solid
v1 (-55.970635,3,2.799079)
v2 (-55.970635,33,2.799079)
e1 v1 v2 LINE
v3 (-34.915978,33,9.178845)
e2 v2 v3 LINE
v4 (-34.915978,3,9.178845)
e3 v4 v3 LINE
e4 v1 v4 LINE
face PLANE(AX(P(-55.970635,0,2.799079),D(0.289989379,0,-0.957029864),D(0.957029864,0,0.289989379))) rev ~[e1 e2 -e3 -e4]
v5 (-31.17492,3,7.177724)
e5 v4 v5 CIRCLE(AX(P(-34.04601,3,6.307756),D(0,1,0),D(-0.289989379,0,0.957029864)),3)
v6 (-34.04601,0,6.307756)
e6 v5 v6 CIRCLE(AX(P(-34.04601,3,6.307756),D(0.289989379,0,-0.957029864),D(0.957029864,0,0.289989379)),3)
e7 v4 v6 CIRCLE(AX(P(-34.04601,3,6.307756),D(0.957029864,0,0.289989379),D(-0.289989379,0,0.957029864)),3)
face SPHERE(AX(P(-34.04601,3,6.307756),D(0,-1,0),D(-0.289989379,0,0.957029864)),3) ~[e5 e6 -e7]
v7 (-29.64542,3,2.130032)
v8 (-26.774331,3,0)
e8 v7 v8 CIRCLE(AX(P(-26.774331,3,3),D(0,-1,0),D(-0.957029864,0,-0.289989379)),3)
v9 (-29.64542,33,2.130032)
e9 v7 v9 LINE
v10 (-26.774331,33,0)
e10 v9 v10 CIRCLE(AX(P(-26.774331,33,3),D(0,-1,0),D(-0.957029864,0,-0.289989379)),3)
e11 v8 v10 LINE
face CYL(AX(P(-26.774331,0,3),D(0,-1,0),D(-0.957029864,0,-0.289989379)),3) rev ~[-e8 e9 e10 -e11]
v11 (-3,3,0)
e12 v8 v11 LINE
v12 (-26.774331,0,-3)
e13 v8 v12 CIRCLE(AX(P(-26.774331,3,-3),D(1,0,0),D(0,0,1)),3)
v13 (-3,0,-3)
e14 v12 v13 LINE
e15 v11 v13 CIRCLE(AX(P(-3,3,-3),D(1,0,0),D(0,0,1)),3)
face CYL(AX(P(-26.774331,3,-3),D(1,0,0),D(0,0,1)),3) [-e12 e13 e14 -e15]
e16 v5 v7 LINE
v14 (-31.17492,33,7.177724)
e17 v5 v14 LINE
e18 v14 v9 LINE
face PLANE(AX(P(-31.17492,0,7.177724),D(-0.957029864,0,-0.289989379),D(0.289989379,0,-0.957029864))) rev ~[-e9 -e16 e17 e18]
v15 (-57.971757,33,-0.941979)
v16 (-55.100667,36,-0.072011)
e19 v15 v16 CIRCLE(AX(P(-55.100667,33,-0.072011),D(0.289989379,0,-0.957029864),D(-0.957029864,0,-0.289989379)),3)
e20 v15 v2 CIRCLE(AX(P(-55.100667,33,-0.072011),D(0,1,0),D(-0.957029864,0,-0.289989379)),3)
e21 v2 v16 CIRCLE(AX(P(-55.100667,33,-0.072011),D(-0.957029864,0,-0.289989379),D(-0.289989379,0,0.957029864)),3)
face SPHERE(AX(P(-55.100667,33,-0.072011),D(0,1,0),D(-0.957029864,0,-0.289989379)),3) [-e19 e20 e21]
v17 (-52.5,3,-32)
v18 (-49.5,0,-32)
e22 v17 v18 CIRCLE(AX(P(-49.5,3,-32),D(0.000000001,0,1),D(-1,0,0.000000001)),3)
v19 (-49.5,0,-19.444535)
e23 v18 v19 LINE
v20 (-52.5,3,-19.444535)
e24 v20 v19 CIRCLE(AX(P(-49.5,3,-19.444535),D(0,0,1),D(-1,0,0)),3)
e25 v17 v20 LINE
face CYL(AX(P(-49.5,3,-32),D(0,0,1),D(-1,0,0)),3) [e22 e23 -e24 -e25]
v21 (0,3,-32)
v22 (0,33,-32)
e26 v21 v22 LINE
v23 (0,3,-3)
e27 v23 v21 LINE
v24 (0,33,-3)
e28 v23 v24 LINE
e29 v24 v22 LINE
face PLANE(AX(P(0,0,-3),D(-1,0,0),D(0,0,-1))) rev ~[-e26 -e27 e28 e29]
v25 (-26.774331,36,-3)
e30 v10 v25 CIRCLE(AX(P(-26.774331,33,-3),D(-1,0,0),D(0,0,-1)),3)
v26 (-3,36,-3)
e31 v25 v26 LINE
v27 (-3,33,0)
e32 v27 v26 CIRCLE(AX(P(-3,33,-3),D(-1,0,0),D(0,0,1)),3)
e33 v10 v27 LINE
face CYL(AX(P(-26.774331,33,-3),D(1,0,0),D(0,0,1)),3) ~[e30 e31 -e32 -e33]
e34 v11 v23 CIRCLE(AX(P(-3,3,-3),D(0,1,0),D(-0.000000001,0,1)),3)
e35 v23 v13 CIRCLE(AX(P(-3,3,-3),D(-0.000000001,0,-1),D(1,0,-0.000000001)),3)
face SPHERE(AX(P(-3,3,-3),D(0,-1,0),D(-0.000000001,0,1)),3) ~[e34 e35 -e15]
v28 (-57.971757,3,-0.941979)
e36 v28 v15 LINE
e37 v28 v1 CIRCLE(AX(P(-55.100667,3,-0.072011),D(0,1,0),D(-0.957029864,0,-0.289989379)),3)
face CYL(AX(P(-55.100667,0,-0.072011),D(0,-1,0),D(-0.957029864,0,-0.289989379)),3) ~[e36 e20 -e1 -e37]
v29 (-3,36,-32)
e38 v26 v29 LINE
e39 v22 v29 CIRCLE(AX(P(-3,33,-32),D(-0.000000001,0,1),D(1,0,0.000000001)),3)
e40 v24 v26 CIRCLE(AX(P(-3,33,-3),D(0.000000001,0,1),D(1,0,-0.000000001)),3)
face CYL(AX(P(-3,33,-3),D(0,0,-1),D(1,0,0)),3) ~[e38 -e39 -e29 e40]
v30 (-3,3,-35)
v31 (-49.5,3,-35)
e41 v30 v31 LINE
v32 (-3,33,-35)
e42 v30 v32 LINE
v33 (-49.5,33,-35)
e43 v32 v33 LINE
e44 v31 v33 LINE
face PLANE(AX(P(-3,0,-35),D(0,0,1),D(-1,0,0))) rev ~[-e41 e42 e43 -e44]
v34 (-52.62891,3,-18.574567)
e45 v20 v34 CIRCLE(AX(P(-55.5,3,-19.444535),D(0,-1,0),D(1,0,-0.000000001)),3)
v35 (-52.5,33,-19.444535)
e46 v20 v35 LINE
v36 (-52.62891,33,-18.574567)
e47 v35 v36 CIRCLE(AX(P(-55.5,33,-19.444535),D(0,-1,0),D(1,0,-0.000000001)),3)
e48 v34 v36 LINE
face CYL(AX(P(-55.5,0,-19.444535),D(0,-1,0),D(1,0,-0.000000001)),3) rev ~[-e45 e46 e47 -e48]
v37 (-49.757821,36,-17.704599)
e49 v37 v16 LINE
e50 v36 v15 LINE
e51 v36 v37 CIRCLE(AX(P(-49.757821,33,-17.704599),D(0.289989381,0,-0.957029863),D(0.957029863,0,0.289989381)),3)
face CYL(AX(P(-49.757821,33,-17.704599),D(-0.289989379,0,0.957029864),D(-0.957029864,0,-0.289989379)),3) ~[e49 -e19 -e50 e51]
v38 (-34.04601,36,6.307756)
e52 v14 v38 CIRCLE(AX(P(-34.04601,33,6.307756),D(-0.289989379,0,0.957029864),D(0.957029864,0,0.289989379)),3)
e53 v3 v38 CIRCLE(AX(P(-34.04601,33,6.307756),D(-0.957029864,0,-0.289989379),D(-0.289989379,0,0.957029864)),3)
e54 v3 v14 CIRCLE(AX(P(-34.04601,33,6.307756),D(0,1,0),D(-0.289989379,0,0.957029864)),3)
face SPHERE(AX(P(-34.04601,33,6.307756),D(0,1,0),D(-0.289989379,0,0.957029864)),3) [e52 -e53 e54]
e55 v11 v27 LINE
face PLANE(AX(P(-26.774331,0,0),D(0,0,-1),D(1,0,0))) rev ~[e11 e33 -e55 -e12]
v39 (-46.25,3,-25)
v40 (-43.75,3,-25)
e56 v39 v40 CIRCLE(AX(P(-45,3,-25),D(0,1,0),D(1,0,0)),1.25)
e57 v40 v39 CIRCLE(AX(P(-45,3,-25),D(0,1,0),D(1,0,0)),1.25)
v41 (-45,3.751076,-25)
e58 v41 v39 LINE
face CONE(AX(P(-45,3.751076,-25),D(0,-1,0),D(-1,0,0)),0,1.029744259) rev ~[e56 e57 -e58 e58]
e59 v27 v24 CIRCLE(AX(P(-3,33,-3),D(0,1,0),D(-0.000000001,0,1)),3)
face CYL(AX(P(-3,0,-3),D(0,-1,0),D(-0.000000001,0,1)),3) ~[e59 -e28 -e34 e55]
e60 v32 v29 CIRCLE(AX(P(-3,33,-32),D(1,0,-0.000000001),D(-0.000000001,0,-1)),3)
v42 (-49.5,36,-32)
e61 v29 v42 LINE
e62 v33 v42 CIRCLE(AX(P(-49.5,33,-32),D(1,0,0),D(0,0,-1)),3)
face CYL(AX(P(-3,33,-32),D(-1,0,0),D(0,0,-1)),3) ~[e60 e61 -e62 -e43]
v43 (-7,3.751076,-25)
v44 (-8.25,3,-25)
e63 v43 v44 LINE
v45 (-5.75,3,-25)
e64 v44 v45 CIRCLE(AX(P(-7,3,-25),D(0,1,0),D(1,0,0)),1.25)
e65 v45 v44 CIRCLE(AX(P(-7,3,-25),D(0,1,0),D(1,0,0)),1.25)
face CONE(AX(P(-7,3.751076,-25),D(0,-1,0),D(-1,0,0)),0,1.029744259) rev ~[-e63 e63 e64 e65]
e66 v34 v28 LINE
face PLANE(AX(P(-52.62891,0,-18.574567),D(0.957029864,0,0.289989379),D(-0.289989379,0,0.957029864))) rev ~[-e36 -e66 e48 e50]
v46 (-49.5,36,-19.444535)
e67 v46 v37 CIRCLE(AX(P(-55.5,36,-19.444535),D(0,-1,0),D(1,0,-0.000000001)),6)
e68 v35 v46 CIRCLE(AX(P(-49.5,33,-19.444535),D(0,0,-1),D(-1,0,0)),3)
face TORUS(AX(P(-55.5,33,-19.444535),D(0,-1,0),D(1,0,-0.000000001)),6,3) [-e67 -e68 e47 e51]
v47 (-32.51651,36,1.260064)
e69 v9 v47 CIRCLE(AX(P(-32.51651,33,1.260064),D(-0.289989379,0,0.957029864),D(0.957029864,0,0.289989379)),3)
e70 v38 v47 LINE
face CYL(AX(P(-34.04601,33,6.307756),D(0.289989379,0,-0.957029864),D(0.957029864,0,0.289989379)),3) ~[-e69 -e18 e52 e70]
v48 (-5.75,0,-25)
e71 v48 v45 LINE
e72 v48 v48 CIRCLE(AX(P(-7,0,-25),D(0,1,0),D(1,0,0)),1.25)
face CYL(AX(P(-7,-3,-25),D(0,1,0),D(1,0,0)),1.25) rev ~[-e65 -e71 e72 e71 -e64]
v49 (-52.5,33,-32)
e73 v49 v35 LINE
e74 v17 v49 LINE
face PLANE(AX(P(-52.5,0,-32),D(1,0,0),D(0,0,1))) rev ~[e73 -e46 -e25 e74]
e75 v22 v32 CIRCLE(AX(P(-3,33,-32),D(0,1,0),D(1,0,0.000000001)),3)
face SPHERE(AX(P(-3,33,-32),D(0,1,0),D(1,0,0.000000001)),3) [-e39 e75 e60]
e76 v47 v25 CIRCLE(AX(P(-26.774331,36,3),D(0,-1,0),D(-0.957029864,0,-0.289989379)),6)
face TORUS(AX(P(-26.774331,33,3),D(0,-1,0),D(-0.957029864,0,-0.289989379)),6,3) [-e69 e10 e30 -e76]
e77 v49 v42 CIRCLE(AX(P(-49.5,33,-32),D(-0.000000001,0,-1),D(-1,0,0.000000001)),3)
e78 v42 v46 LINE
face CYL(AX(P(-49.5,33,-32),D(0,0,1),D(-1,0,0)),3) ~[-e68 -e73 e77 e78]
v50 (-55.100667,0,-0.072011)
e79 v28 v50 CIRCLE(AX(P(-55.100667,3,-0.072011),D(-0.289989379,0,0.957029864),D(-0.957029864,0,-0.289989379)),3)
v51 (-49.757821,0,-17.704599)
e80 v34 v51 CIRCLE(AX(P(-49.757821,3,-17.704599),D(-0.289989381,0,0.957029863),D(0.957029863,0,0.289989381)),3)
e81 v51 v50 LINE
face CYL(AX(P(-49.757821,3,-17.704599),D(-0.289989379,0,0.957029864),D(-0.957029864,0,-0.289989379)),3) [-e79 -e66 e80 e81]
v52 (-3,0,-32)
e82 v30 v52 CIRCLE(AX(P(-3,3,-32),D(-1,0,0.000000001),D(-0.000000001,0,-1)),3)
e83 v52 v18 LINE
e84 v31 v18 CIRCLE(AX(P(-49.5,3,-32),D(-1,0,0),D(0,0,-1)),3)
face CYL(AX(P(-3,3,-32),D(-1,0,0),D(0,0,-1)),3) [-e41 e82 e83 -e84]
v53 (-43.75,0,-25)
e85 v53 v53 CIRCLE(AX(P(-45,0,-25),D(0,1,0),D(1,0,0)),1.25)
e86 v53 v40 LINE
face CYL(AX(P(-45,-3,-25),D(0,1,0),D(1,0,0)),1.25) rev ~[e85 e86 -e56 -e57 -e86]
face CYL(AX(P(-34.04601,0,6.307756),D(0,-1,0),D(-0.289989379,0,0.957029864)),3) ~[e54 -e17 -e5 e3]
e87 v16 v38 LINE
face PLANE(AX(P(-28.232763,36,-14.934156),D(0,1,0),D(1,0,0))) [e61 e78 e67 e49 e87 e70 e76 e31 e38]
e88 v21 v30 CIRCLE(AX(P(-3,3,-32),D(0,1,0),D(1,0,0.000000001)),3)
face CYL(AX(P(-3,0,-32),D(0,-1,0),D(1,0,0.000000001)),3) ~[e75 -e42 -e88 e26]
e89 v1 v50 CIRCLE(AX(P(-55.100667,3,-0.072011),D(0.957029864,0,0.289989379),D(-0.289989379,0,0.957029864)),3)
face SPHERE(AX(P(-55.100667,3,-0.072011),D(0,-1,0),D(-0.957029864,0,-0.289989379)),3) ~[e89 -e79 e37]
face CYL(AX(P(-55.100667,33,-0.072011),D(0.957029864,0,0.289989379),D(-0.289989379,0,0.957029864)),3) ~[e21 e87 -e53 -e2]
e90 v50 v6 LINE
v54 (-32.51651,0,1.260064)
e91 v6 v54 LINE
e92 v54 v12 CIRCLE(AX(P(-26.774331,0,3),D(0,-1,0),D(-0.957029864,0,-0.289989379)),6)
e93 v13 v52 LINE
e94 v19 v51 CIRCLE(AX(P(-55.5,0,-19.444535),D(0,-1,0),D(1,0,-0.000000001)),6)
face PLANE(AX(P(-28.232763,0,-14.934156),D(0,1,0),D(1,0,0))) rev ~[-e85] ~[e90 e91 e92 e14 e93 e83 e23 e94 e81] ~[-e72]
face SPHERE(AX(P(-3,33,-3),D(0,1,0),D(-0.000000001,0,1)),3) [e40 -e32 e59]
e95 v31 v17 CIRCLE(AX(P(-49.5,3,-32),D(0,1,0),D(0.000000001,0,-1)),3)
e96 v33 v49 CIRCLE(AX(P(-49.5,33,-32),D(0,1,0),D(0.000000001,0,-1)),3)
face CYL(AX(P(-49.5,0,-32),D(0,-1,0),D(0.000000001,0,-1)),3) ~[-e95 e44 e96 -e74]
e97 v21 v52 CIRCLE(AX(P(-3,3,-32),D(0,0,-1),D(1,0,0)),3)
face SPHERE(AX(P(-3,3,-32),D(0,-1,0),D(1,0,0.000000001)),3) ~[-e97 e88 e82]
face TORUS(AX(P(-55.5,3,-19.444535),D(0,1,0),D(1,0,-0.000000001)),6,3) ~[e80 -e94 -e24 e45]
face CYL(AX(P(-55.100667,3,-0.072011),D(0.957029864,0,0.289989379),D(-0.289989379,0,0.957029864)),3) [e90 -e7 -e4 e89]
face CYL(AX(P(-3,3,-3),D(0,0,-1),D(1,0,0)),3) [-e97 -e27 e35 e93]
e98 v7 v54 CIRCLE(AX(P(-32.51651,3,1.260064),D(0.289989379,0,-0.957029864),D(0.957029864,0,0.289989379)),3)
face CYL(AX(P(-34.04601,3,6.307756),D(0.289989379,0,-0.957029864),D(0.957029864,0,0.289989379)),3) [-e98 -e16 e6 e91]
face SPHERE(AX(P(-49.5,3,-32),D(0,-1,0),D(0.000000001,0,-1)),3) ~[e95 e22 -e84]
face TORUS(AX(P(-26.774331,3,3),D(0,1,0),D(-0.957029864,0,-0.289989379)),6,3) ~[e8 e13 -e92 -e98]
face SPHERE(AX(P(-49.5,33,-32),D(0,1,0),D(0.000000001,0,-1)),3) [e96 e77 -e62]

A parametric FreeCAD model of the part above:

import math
import FreeCAD as App
import Part
import Sketcher

V = App.Vector


def edges_at(feature, points):
    """Names of the edges that pass closest to the given points."""
    edges = feature.Shape.Edges
    near = lambda p: min(range(len(edges)), key=lambda i: edges[i].distToShape(Part.Vertex(*p))[0])
    return sorted({f"Edge{near(p) + 1}" for p in points})

doc = App.newDocument("Part")
body = doc.addObject("PartDesign::Body", "Body")

# Sketch on XZ plane
sketch1 = doc.addObject("Sketcher::SketchObject", "Sketch")
body.addObject(sketch1)
sketch1.AttachmentSupport = (doc.XZ_Plane, [""])
sketch1.MapMode = "FlatFace"
sketch1.addGeometry(Part.LineSegment(V(0, -3, 0), V(0, -32, 0)), False)
sketch1.addGeometry(Part.ArcOfCircle(Part.Circle(V(-3, -32, 0), V(0, 0, 1), 3), math.radians(-90), math.radians(0)), False)
sketch1.addGeometry(Part.LineSegment(V(-3, -35, 0), V(-49.5, -35, 0)), False)
sketch1.addGeometry(Part.ArcOfCircle(Part.Circle(V(-49.5, -32, 0), V(0, 0, 1), 3), math.radians(180), math.radians(270)), False)
sketch1.addGeometry(Part.LineSegment(V(-52.5, -32, 0), V(-52.5, -19.4, 0)), False)
sketch1.addGeometry(Part.ArcOfCircle(Part.Circle(V(-55.5, -19.4, 0), V(0, 0, 1), 3), math.radians(0), math.radians(16.86)), False)
sketch1.addGeometry(Part.LineSegment(V(-52.6, -18.6, 0), V(-58, -0.9, 0)), False)
sketch1.addGeometry(Part.ArcOfCircle(Part.Circle(V(-55.1, -0.1, 0), V(0, 0, 1), 3), math.radians(107), math.radians(197)), False)
sketch1.addGeometry(Part.LineSegment(V(-56, 2.8, 0), V(-34.9, 9.2, 0)), False)
sketch1.addGeometry(Part.ArcOfCircle(Part.Circle(V(-34, 6.3, 0), V(0, 0, 1), 3), math.radians(17), math.radians(107)), False)
sketch1.addGeometry(Part.LineSegment(V(-31.2, 7.2, 0), V(-29.6, 2.1, 0)), False)
sketch1.addGeometry(Part.ArcOfCircle(Part.Circle(V(-26.8, 3, 0), V(0, 0, 1), 3), math.radians(-163), math.radians(-90)), False)
sketch1.addGeometry(Part.LineSegment(V(-26.8, 0, 0), V(-3, 0, 0)), False)
sketch1.addGeometry(Part.ArcOfCircle(Part.Circle(V(-3, -3, 0), V(0, 0, 1), 3), math.radians(0), math.radians(90)), False)
sketch1.addConstraint(Sketcher.Constraint("Tangent", 0, 2, 1, 2))
sketch1.addConstraint(Sketcher.Constraint("Tangent", 1, 1, 2, 1))
sketch1.addConstraint(Sketcher.Constraint("Tangent", 2, 2, 3, 2))
sketch1.addConstraint(Sketcher.Constraint("Tangent", 3, 1, 4, 1))
sketch1.addConstraint(Sketcher.Constraint("Tangent", 4, 2, 5, 1))
sketch1.addConstraint(Sketcher.Constraint("Tangent", 5, 2, 6, 1))
sketch1.addConstraint(Sketcher.Constraint("Tangent", 6, 2, 7, 2))
sketch1.addConstraint(Sketcher.Constraint("Tangent", 7, 1, 8, 1))
sketch1.addConstraint(Sketcher.Constraint("Tangent", 8, 2, 9, 2))
sketch1.addConstraint(Sketcher.Constraint("Tangent", 9, 1, 10, 1))
sketch1.addConstraint(Sketcher.Constraint("Tangent", 10, 2, 11, 1))
sketch1.addConstraint(Sketcher.Constraint("Tangent", 11, 2, 12, 1))
sketch1.addConstraint(Sketcher.Constraint("Tangent", 12, 2, 13, 2))
sketch1.addConstraint(Sketcher.Constraint("Tangent", 13, 1, 0, 1))
sketch1.addConstraint(Sketcher.Constraint("Vertical", 0))
sketch1.addConstraint(Sketcher.Constraint("Horizontal", 2))
sketch1.addConstraint(Sketcher.Constraint("Vertical", 4))
sketch1.addConstraint(Sketcher.Constraint("Horizontal", 12))
sketch1.addConstraint(Sketcher.Constraint("Equal", 1, 3))
sketch1.addConstraint(Sketcher.Constraint("Equal", 3, 5))
sketch1.addConstraint(Sketcher.Constraint("Equal", 5, 7))
sketch1.addConstraint(Sketcher.Constraint("Equal", 7, 9))
sketch1.addConstraint(Sketcher.Constraint("Equal", 9, 11))
sketch1.addConstraint(Sketcher.Constraint("Equal", 11, 13))
sketch1.addConstraint(Sketcher.Constraint("PointOnObject", 0, 2, -2))
sketch1.addConstraint(Sketcher.Constraint("PointOnObject", 11, 2, -1))
sketch1.addConstraint(Sketcher.Constraint("Perpendicular", 6, 8))
sketch1.addConstraint(Sketcher.Constraint("Perpendicular", 8, 10))
sketch1.addConstraint(Sketcher.Constraint("Radius", 1, 3.0))
sketch1.addConstraint(Sketcher.Constraint("DistanceY", 0, 2, 0, 1, 29.0))
sketch1.addConstraint(Sketcher.Constraint("Distance", 8, 22.0))
sketch1.addConstraint(Sketcher.Constraint("DistanceX", 2, 2, 2, 1, 46.5))
sketch1.addConstraint(Sketcher.Constraint("DistanceX", 12, 1, 12, 2, 23.774331))
sketch1.addConstraint(Sketcher.Constraint("DistanceX", 9, 1, 10, 2, 1.5295))
sketch1.addConstraint(Sketcher.Constraint("Distance", 10, 5.274331))
pad1 = doc.addObject("PartDesign::Pad", "Pad")
body.addObject(pad1)
pad1.Profile = sketch1
pad1.Length = 36
pad1.Reversed = True
doc.recompute()

fillet = doc.addObject("PartDesign::Fillet", "Fillet")
body.addObject(fillet)
fillet.Base = (pad1, edges_at(pad1, [
    (-0.879, 36, -34.121),
    (-14.887, 0, 0),
    (-28.562, 0, 0.591),
    (-26.25, 36, -35),
    (-30.41, 0, 4.654),
    (-32.631, 0, 8.953),
    (-45.443, 0, 5.989),
    (-57.746, 0, 1.343),
    (-55.3, 0, -9.758),
    (-52.532, 0, -19.005),
    (-52.5, 0, -25.722),
    (-51.621, 36, -34.121),
    (-51.621, 0, -34.121),
    (-26.25, 0, -35),
    (-0.879, 0, -34.121),
    (0, 0, -17.5),
    (-0.879, 0, -0.879),
    (-52.5, 36, -25.722),
    (-52.532, 36, -19.005),
    (-55.3, 36, -9.758),
    (-57.746, 36, 1.343),
    (-45.443, 36, 5.989),
    (-32.631, 36, 8.953),
    (-30.41, 36, 4.654),
    (-0.879, 36, -0.879),
    (-28.562, 36, 0.591),
    (-14.887, 36, 0),
    (0, 36, -17.5),
]))
fillet.Radius = 3

# Sketch on XZ plane
sketch2 = doc.addObject("Sketcher::SketchObject", "Sketch001")
body.addObject(sketch2)
sketch2.AttachmentSupport = (doc.XZ_Plane, [""])
sketch2.MapMode = "FlatFace"
sketch2.addGeometry(Part.Circle(V(-7, -25, 0), V(0, 0, 1), 1.2), False)
sketch2.addGeometry(Part.Circle(V(-45, -25, 0), V(0, 0, 1), 1.2), False)
sketch2.addConstraint(Sketcher.Constraint("Equal", 0, 1))
sketch2.addConstraint(Sketcher.Constraint("Horizontal", 0, 3, 1, 3))
sketch2.addConstraint(Sketcher.Constraint("Diameter", 0, 2.5))
sketch2.addConstraint(Sketcher.Constraint("DistanceX", 0, 3, -1, 1, 7.0))
sketch2.addConstraint(Sketcher.Constraint("DistanceY", 0, 3, -1, 1, 25.0))
sketch2.addConstraint(Sketcher.Constraint("DistanceX", 1, 3, -1, 1, 45.0))
doc.recompute()
hole = doc.addObject("PartDesign::Hole", "Hole")
body.addObject(hole)
hole.Profile = sketch2
hole.ThreadType = "None"
hole.Diameter = 2.5
hole.DepthType = "Dimension"
hole.Depth = 3
hole.DrillPoint = "Angled"
hole.DrillPointAngle = 118

doc.recompute()
